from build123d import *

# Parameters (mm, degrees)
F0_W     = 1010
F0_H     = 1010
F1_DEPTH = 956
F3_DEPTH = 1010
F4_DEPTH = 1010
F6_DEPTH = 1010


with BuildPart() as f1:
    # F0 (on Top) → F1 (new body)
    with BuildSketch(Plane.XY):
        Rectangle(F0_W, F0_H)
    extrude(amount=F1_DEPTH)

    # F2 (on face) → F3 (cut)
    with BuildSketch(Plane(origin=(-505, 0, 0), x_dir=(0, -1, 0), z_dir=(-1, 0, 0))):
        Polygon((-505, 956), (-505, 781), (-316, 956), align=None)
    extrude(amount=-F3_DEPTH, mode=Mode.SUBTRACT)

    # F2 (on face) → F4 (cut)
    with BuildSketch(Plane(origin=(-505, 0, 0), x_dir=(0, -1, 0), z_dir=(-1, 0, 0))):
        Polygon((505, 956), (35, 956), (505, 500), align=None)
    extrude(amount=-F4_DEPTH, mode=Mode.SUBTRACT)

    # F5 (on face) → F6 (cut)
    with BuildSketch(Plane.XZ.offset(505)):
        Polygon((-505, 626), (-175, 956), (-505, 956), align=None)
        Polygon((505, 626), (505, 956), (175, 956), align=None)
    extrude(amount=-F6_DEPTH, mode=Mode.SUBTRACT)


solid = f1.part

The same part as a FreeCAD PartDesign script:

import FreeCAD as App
import Part
import Sketcher
from FreeCAD import Vector


def add_polygon(sketch, points):
    """Adds a closed chain of lines whose ends are joined by coincident constraints."""
    first, n = sketch.GeometryCount, len(points)
    for a, b in zip(points, points[1:] + points[:1]):
        sketch.addGeometry(Part.LineSegment(App.Vector(*a, 0), App.Vector(*b, 0)), False)
    for i in range(n):
        sketch.addConstraint(Sketcher.Constraint("Coincident", first + i, 2, first + (i + 1) % n, 1))

doc = App.newDocument("Part")
body = doc.addObject("PartDesign::Body", "Body")

sketch1 = doc.addObject("Sketcher::SketchObject", "Sketch")
body.addObject(sketch1)
sketch1.AttachmentSupport = (doc.XY_Plane, [""])
sketch1.MapMode = "FlatFace"
add_polygon(sketch1, [(-505, 505), (-505, -505), (505, -505), (505, 505)])
sketch1.addConstraint(Sketcher.Constraint("Vertical", 0))
sketch1.addConstraint(Sketcher.Constraint("Horizontal", 1))
sketch1.addConstraint(Sketcher.Constraint("Vertical", 2))
sketch1.addConstraint(Sketcher.Constraint("Horizontal", 3))
sketch1.addConstraint(Sketcher.Constraint("Symmetric", 0, 2, 2, 2, -1, 1))
sketch1.addConstraint(Sketcher.Constraint("Equal", 3, 0))
sketch1.addConstraint(Sketcher.Constraint("DistanceX", 1, 1, 1, 2, 1010.0))
pad1 = doc.addObject("PartDesign::Pad", "Pad")
body.addObject(pad1)
pad1.Profile = sketch1
pad1.Length = 956

sketch2 = doc.addObject("Sketcher::SketchObject", "Sketch001")
body.addObject(sketch2)
sketch2.AttachmentSupport = (doc.YZ_Plane, [""])
sketch2.MapMode = "FlatFace"
sketch2.AttachmentOffset = App.Placement(Vector(0, 0, -505), App.Rotation())
add_polygon(sketch2, [(505, 956), (505, 781), (316, 956)])
sketch2.addConstraint(Sketcher.Constraint("Vertical", 0))
sketch2.addConstraint(Sketcher.Constraint("Horizontal", 2))
sketch2.addConstraint(Sketcher.Constraint("DistanceX", 2, 1, 2, 2, 189.0))
sketch2.addConstraint(Sketcher.Constraint("DistanceY", 0, 2, 0, 1, 175.0))
sketch2.addConstraint(Sketcher.Constraint("DistanceX", -1, 1, 0, 2, 505.0))
sketch2.addConstraint(Sketcher.Constraint("DistanceY", -1, 1, 0, 2, 781.0))
pocket1 = doc.addObject("PartDesign::Pocket", "Pocket")
body.addObject(pocket1)
pocket1.Profile = sketch2
pocket1.Length = 1010
pocket1.Reversed = True

sketch3 = doc.addObject("Sketcher::SketchObject", "Sketch002")
body.addObject(sketch3)
sketch3.AttachmentSupport = (doc.YZ_Plane, [""])
sketch3.MapMode = "FlatFace"
sketch3.AttachmentOffset = App.Placement(Vector(0, 0, -505), App.Rotation())
add_polygon(sketch3, [(-505, 956), (-35, 956), (-505, 500)])
sketch3.addConstraint(Sketcher.Constraint("Horizontal", 0))
sketch3.addConstraint(Sketcher.Constraint("Vertical", 2))
sketch3.addConstraint(Sketcher.Constraint("DistanceX", 0, 1, 0, 2, 470.0))
sketch3.addConstraint(Sketcher.Constraint("DistanceY", 2, 1, 2, 2, 456.0))
sketch3.addConstraint(Sketcher.Constraint("DistanceX", 0, 2, -1, 1, 35.0))
sketch3.addConstraint(Sketcher.Constraint("DistanceY", -1, 1, 0, 2, 956.0))
pocket2 = doc.addObject("PartDesign::Pocket", "Pocket001")
body.addObject(pocket2)
pocket2.Profile = sketch3
pocket2.Length = 1010
pocket2.Reversed = True

sketch4 = doc.addObject("Sketcher::SketchObject", "Sketch003")
body.addObject(sketch4)
sketch4.AttachmentSupport = (doc.XZ_Plane, [""])
sketch4.MapMode = "FlatFace"
sketch4.AttachmentOffset = App.Placement(Vector(0, 0, 505), App.Rotation())
add_polygon(sketch4, [(-505, 626), (-175, 956), (-505, 956)])
add_polygon(sketch4, [(505, 626), (505, 956), (175, 956)])
sketch4.addConstraint(Sketcher.Constraint("Horizontal", 1))
sketch4.addConstraint(Sketcher.Constraint("Vertical", 2))
sketch4.addConstraint(Sketcher.Constraint("Vertical", 3))
sketch4.addConstraint(Sketcher.Constraint("Horizontal", 4))
sketch4.addConstraint(Sketcher.Constraint("Symmetric", 1, 2, 3, 2, -2))
sketch4.addConstraint(Sketcher.Constraint("Perpendicular", 0, 5))
sketch4.addConstraint(Sketcher.Constraint("Horizontal", 2, 2, 5, 2))
sketch4.addConstraint(Sketcher.Constraint("Equal", 1, 4))
sketch4.addConstraint(Sketcher.Constraint("DistanceX", 1, 2, 1, 1, 330.0))
sketch4.addConstraint(Sketcher.Constraint("DistanceX", 0, 2, -1, 1, 175.0))
sketch4.addConstraint(Sketcher.Constraint("DistanceY", -1, 1, 0, 2, 956.0))
pocket3 = doc.addObject("PartDesign::Pocket", "Pocket002")
body.addObject(pocket3)
pocket3.Profile = sketch4
pocket3.Length = 1010

doc.recompute()
